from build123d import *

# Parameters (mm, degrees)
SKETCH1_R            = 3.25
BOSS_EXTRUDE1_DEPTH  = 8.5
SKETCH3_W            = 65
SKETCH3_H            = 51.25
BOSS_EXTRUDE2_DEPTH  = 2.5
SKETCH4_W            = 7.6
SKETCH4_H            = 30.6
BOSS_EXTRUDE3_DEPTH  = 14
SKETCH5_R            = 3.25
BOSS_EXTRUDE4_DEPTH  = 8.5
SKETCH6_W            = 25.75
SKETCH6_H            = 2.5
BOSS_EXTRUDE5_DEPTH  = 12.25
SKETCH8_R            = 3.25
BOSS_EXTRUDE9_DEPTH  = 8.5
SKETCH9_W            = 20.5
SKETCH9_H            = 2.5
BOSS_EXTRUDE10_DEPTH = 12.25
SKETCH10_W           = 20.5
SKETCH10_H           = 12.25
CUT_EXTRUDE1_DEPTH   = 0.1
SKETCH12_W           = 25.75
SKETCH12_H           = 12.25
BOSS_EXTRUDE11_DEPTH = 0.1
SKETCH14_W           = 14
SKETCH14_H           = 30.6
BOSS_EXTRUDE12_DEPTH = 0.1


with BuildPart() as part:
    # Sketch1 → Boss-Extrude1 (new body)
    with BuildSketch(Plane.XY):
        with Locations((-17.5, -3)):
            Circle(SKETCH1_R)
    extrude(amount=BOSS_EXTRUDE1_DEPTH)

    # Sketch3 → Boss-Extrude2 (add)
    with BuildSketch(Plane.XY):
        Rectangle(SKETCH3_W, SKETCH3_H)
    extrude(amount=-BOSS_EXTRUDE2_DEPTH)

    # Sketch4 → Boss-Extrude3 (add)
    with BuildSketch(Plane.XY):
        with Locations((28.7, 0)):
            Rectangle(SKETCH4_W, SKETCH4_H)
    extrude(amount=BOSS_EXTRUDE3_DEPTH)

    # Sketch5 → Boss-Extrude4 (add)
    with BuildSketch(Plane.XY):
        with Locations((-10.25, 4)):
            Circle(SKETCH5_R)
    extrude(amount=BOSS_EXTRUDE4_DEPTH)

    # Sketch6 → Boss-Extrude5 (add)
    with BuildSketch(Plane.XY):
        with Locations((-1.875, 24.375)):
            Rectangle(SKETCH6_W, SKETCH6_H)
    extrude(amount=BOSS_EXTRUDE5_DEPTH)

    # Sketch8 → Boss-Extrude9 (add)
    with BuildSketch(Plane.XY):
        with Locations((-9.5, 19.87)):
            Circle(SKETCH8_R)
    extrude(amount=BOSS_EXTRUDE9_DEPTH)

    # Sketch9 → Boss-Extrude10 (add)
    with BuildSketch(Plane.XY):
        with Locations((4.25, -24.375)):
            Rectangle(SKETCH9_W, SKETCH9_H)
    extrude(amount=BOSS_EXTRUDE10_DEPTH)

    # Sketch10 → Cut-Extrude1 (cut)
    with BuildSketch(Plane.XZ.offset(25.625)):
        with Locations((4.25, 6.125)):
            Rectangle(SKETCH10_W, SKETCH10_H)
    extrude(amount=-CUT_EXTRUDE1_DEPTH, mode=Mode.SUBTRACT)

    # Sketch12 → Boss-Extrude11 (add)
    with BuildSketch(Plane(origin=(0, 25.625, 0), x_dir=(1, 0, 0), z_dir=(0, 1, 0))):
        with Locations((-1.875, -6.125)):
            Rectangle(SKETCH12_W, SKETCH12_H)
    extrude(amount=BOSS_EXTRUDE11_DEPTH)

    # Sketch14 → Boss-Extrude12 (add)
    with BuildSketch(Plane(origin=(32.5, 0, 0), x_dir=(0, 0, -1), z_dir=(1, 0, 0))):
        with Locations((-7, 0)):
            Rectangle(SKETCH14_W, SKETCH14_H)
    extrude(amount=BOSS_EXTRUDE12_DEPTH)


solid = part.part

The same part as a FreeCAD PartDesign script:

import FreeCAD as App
import Part
import Sketcher
from FreeCAD import Vector


def add_polygon(sketch, points):
    """Adds a closed chain of lines whose ends are joined by coincident constraints."""
    first, n = sketch.GeometryCount, len(points)
    for a, b in zip(points, points[1:] + points[:1]):
        sketch.addGeometry(Part.LineSegment(App.Vector(*a, 0), App.Vector(*b, 0)), False)
    for i in range(n):
        sketch.addConstraint(Sketcher.Constraint("Coincident", first + i, 2, first + (i + 1) % n, 1))

doc = App.newDocument("Part")
body = doc.addObject("PartDesign::Body", "Body")

sketch1 = body.newObject("Sketcher::SketchObject", "Sketch")
sketch1.AttachmentSupport = (doc.getObject("XY_Plane"), [""])
sketch1.MapMode = "FlatFace"
sketch1.addGeometry(Part.Circle(Vector(-17.5, -3, 0), Vector(0, 0, 1), 3.25), False)
sketch1.addConstraint([
    Sketcher.Constraint("Diameter", 0, 6.5),
    Sketcher.Constraint("DistanceY", 0, 3, -1, 1, 3.0),
    Sketcher.Constraint("DistanceX", 0, 3, -1, 1, 17.5),
])
pad1 = body.newObject("PartDesign::Pad", "Pad")
pad1.Profile = sketch1
pad1.Length = 8.5

sketch2 = body.newObject("Sketcher::SketchObject", "Sketch001")
sketch2.AttachmentSupport = (doc.getObject("XY_Plane"), [""])
sketch2.MapMode = "FlatFace"
add_polygon(sketch2, [(-32.5, 25.625), (-32.5, -25.625), (32.5, -25.625), (32.5, 25.625)])
sketch2.addConstraint([
    Sketcher.Constraint("Vertical", 0),
    Sketcher.Constraint("Horizontal", 1),
    Sketcher.Constraint("Vertical", 2),
    Sketcher.Constraint("Horizontal", 3),
    Sketcher.Constraint("Symmetric", 0, 2, 2, 2, -1, 1),
    Sketcher.Constraint("DistanceX", 1, 1, 1, 2, 65.0),
    Sketcher.Constraint("DistanceY", 0, 2, 0, 1, 51.25),
])
pad2 = body.newObject("PartDesign::Pad", "Pad001")
pad2.Profile = sketch2
pad2.Length = 2.5
pad2.Reversed = True

sketch3 = body.newObject("Sketcher::SketchObject", "Sketch002")
sketch3.AttachmentSupport = (doc.getObject("XY_Plane"), [""])
sketch3.MapMode = "FlatFace"
add_polygon(sketch3, [(24.9, 15.3), (24.9, -15.3), (32.5, -15.3), (32.5, 15.3)])
sketch3.addConstraint([
    Sketcher.Constraint("Vertical", 0),
    Sketcher.Constraint("Horizontal", 1),
    Sketcher.Constraint("Vertical", 2),
    Sketcher.Constraint("Horizontal", 3),
    Sketcher.Constraint("DistanceX", 1, 1, 1, 2, 7.6),
    Sketcher.Constraint("DistanceY", 0, 2, 0, 1, 30.6),
    Sketcher.Constraint("DistanceX", -1, 1, 0, 2, 24.9),
    Sketcher.Constraint("DistanceY", 0, 2, -1, 1, 15.3),
])
pad3 = body.newObject("PartDesign::Pad", "Pad002")
pad3.Profile = sketch3
pad3.Length = 14

sketch4 = body.newObject("Sketcher::SketchObject", "Sketch003")
sketch4.AttachmentSupport = (doc.getObject("XY_Plane"), [""])
sketch4.MapMode = "FlatFace"
sketch4.addGeometry(Part.Circle(Vector(-10.25, 4, 0), Vector(0, 0, 1), 3.25), False)
sketch4.addConstraint([
    Sketcher.Constraint("Diameter", 0, 6.5),
    Sketcher.Constraint("DistanceY", -1, 1, 0, 3, 4.0),
    Sketcher.Constraint("DistanceX", 0, 3, -1, 1, 10.25),
])
pad4 = body.newObject("PartDesign::Pad", "Pad003")
pad4.Profile = sketch4
pad4.Length = 8.5

sketch5 = body.newObject("Sketcher::SketchObject", "Sketch004")
sketch5.AttachmentSupport = (doc.getObject("XY_Plane"), [""])
sketch5.MapMode = "FlatFace"
add_polygon(sketch5, [(-14.75, 25.625), (-14.75, 23.125), (11, 23.125), (11, 25.625)])
sketch5.addConstraint([
    Sketcher.Constraint("Vertical", 0),
    Sketcher.Constraint("Horizontal", 1),
    Sketcher.Constraint("Vertical", 2),
    Sketcher.Constraint("Horizontal", 3),
    Sketcher.Constraint("DistanceY", 0, 2, 0, 1, 2.5),
    Sketcher.Constraint("DistanceX", -1, 1, 1, 2, 11.0),
    Sketcher.Constraint("DistanceX", 1, 1, 1, 2, 25.75),
    Sketcher.Constraint("DistanceY", -1, 1, 0, 2, 23.125),
])
pad5 = body.newObject("PartDesign::Pad", "Pad004")
pad5.Profile = sketch5
pad5.Length = 12.25

sketch6 = body.newObject("Sketcher::SketchObject", "Sketch005")
sketch6.AttachmentSupport = (doc.getObject("XY_Plane"), [""])
sketch6.MapMode = "FlatFace"
sketch6.addGeometry(Part.Circle(Vector(-9.5, 19.87, 0), Vector(0, 0, 1), 3.25), False)
sketch6.addConstraint([
    Sketcher.Constraint("Diameter", 0, 6.5),
    Sketcher.Constraint("DistanceX", 0, 3, -1, 1, 9.5),
    Sketcher.Constraint("DistanceY", -1, 1, 0, 3, 19.87),
])
pad6 = body.newObject("PartDesign::Pad", "Pad005")
pad6.Profile = sketch6
pad6.Length = 8.5

sketch7 = body.newObject("Sketcher::SketchObject", "Sketch006")
sketch7.AttachmentSupport = (doc.getObject("XY_Plane"), [""])
sketch7.MapMode = "FlatFace"
add_polygon(sketch7, [(-6, -23.125), (-6, -25.625), (14.5, -25.625), (14.5, -23.125)])
sketch7.addConstraint([
    Sketcher.Constraint("Vertical", 0),
    Sketcher.Constraint("Horizontal", 1),
    Sketcher.Constraint("Vertical", 2),
    Sketcher.Constraint("Horizontal", 3),
    Sketcher.Constraint("DistanceX", 1, 1, 1, 2, 20.5),
    Sketcher.Constraint("DistanceY", 0, 2, 0, 1, 2.5),
    Sketcher.Constraint("DistanceX", 0, 2, -1, 1, 6.0),
    Sketcher.Constraint("DistanceY", 0, 2, -1, 1, 25.625),
])
pad7 = body.newObject("PartDesign::Pad", "Pad006")
pad7.Profile = sketch7
pad7.Length = 12.25

sketch8 = body.newObject("Sketcher::SketchObject", "Sketch007")
sketch8.AttachmentSupport = (doc.getObject("XZ_Plane"), [""])
sketch8.MapMode = "FlatFace"
sketch8.AttachmentOffset = App.Placement(Vector(0, 0, 25.625), App.Rotation())
add_polygon(sketch8, [(-6, 12.25), (-6, 0), (14.5, 0), (14.5, 12.25)])
sketch8.addConstraint([
    Sketcher.Constraint("Vertical", 0),
    Sketcher.Constraint("Horizontal", 1),
    Sketcher.Constraint("Vertical", 2),
    Sketcher.Constraint("Horizontal", 3),
    Sketcher.Constraint("PointOnObject", 0, 2, -1),
    Sketcher.Constraint("DistanceX", 1, 1, 1, 2, 20.5),
    Sketcher.Constraint("DistanceX", 0, 2, -1, 1, 6.0),
    Sketcher.Constraint("DistanceY", 0, 2, 0, 1, 12.25),
])
pocket1 = body.newObject("PartDesign::Pocket", "Pocket")
pocket1.Profile = sketch8
pocket1.Length = 0.1

sketch9 = body.newObject("Sketcher::SketchObject", "Sketch008")
sketch9.AttachmentSupport = (doc.getObject("XZ_Plane"), [""])
sketch9.MapMode = "FlatFace"
sketch9.AttachmentOffset = App.Placement(Vector(0, 0, -25.625), App.Rotation())
add_polygon(sketch9, [(-14.75, 0), (-14.75, 12.25), (11, 12.25), (11, 0)])
sketch9.addConstraint([
    Sketcher.Constraint("Vertical", 0),
    Sketcher.Constraint("Horizontal", 1),
    Sketcher.Constraint("Vertical", 2),
    Sketcher.Constraint("Horizontal", 3),
    Sketcher.Constraint("PointOnObject", 2, 2, -1),
    Sketcher.Constraint("DistanceX", -1, 1, 1, 2, 11.0),
    Sketcher.Constraint("DistanceX", 1, 1, 1, 2, 25.75),
    Sketcher.Constraint("DistanceY", 0, 1, 0, 2, 12.25),
])
pad8 = body.newObject("PartDesign::Pad", "Pad007")
pad8.Profile = sketch9
pad8.Length = 0.1
pad8.Reversed = True

sketch10 = body.newObject("Sketcher::SketchObject", "Sketch009")
sketch10.AttachmentSupport = (doc.getObject("YZ_Plane"), [""])
sketch10.MapMode = "FlatFace"
sketch10.AttachmentOffset = App.Placement(Vector(0, 0, 32.5), App.Rotation())
add_polygon(sketch10, [(15.3, 14), (-15.3, 14), (-15.3, 0), (15.3, 0)])
sketch10.addConstraint([
    Sketcher.Constraint("Horizontal", 0),
    Sketcher.Constraint("Vertical", 1),
    Sketcher.Constraint("Horizontal", 2),
    Sketcher.Constraint("Vertical", 3),
    Sketcher.Constraint("Symmetric", 1, 2, 2, 2, -1, 1),
    Sketcher.Constraint("DistanceY", 1, 2, 1, 1, 14.0),
    Sketcher.Constraint("DistanceX", 0, 2, 0, 1, 30.6),
])
pad9 = body.newObject("PartDesign::Pad", "Pad008")
pad9.Profile = sketch10
pad9.Length = 0.1

doc.recompute()
